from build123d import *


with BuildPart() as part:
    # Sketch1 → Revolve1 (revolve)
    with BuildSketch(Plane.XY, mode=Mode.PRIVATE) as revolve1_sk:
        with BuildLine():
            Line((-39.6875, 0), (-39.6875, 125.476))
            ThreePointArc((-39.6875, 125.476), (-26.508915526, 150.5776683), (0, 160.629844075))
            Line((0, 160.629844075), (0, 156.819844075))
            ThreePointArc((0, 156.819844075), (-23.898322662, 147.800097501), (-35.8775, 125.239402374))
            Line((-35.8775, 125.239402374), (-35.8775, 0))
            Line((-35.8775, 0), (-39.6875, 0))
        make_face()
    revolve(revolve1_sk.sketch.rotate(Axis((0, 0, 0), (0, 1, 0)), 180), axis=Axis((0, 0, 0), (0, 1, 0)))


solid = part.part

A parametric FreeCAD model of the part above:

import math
import FreeCAD as App
import Part
import Sketcher

V = App.Vector
Q = App.Units.Quantity

doc = App.newDocument("Part")
body = doc.addObject("PartDesign::Body", "Body")

# Sketch on XY plane
sketch1 = body.newObject("Sketcher::SketchObject", "Sketch")
sketch1.AttachmentSupport = (doc.getObject("XY_Plane"), [""])
sketch1.MapMode = "FlatFace"
sketch1.addGeometry([
    Part.LineSegment(V(-39.7, 125.5, 0), V(-39.7, 0, 0)),  # 0
    Part.LineSegment(V(-39.7, 0, 0), V(-35.9, 0, 0)),  # 1
    Part.LineSegment(V(-35.9, 0, 0), V(-35.9, 125.2, 0)),  # 2
    Part.ArcOfCircle(Part.Circle(V(0, 120.6, 0), V(0, 0, 1), 36.2), math.radians(90), math.radians(173)),  # 3
    Part.LineSegment(V(0, 156.8, 0), V(0, 160.6, 0)),  # 4
    Part.ArcOfCircle(Part.Circle(V(0, 120.6, 0), V(0, 0, 1), 40), math.radians(90), math.radians(173)),  # 5
], False)
sketch1.addConstraint([
    Sketcher.Constraint("Coincident", 0, 2, 1, 1),
    Sketcher.Constraint("Coincident", 1, 2, 2, 1),
    Sketcher.Constraint("Coincident", 2, 2, 3, 2),
    Sketcher.Constraint("Coincident", 3, 1, 4, 1),
    Sketcher.Constraint("Coincident", 4, 2, 5, 1),
    Sketcher.Constraint("Coincident", 5, 2, 0, 1),
    Sketcher.Constraint("Vertical", 0),
    Sketcher.Constraint("Horizontal", 1),
    Sketcher.Constraint("Vertical", 2),
    Sketcher.Constraint("Vertical", 4),
    Sketcher.Constraint("Coincident", 5, 3, 3, 3),
    Sketcher.Constraint("PointOnObject", 3, 3, -2),
    Sketcher.Constraint("PointOnObject", 0, 2, -1),
    Sketcher.Constraint("PointOnObject", 3, 1, -2),
    Sketcher.Constraint("Equal", 1, 4),
    Sketcher.Constraint("DistanceX", 1, 1, 1, 2, Q("0.15 in")),
    Sketcher.Constraint("DistanceY", 0, 2, 0, 1, Q("4.94 in")),
    Sketcher.Constraint("DistanceY", -1, 1, 3, 3, Q("4.75 in")),
    Sketcher.Constraint("DistanceX", 0, 2, -1, 1, Q("1.5625 in")),
])
revolution = body.newObject("PartDesign::Revolution", "Revolution")
revolution.Profile = sketch1
revolution.ReferenceAxis = (sketch1, ["V_Axis"])
revolution.Angle = 360

doc.recompute()
